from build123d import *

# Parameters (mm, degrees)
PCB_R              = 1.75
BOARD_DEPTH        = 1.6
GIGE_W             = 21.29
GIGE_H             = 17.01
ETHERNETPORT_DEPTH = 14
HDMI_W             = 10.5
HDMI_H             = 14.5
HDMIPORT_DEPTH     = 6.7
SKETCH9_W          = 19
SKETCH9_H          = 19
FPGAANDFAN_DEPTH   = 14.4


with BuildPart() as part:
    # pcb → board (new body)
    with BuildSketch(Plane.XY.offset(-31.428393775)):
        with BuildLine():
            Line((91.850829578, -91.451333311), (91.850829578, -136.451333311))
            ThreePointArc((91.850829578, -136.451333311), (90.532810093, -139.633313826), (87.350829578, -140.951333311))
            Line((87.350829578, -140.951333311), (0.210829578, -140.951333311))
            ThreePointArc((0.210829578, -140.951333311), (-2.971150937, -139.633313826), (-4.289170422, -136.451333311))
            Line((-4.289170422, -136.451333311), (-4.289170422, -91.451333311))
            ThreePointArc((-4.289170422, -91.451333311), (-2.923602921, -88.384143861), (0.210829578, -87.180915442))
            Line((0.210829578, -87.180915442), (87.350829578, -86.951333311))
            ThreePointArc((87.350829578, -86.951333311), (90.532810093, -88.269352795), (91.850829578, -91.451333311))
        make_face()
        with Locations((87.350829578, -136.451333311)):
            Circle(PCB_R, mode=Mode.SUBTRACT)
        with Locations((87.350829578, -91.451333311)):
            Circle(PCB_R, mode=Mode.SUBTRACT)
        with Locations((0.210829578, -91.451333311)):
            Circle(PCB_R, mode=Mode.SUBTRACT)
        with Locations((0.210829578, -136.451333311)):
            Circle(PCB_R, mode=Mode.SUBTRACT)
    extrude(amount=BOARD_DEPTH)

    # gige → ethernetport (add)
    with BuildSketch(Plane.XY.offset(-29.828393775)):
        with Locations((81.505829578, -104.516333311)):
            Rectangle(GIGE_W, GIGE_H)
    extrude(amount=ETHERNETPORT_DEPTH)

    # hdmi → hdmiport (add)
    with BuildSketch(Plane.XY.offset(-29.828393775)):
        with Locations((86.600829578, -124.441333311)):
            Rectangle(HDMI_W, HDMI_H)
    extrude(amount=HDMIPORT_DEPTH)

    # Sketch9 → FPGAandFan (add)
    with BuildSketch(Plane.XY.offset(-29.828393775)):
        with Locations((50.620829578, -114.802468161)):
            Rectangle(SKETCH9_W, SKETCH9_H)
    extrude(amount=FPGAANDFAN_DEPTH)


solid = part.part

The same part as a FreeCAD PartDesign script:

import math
import FreeCAD as App
import Part
import Sketcher

doc = App.newDocument("Part")
params = doc.addObject("Spreadsheet::Sheet", "Params")
for row, (alias, value) in enumerate([
    ("sketch1_diameter", "3.5 mm"),
    ("sketch1_radius", "4.5 mm"),
    ("sketch1_height", "45 mm"),
    ("sketch1_width", "87.14 mm"),
    ("pad1_length", "1.6 mm"),
    ("sketch2_width", "21.29 mm"),
    ("sketch2_height", "17.01 mm"),
    ("pad2_length", "14 mm"),
    ("sketch3_width", "10.5 mm"),
    ("sketch3_height", "14.5 mm"),
    ("pad3_length", "6.7 mm"),
    ("sketch4_width", "19 mm"),
    ("pad4_length", "14.4 mm"),
], start=1):
    params.set(f"A{row}", alias)
    params.set(f"B{row}", "=" + value)
    params.setAlias(f"B{row}", alias)

body = doc.addObject("PartDesign::Body", "Body")

sketch1 = body.newObject("Sketcher::SketchObject", "Sketch")
sketch1.AttachmentSupport = (doc.getObject("XY_Plane"), [""])
sketch1.MapMode = "FlatFace"
sketch1.AttachmentOffset = App.Placement(App.Vector(0, 0, -31.428394), App.Rotation())
sketch1.addGeometry(Part.LineSegment(App.Vector(91.9, -136.5, 0), App.Vector(91.9, -91.5, 0)), False)
sketch1.addGeometry(Part.ArcOfCircle(Part.Circle(App.Vector(87.4, -91.5, 0), App.Vector(0, 0, 1), 4.5), math.radians(0), math.radians(90)), False)
sketch1.addGeometry(Part.LineSegment(App.Vector(87.4, -87, 0), App.Vector(0.2, -87.2, 0)), False)
sketch1.addGeometry(Part.ArcOfCircle(Part.Circle(App.Vector(0.1, -91.6, 0), App.Vector(0, 0, 1), 4.4), math.radians(89), math.radians(179)), False)
sketch1.addGeometry(Part.LineSegment(App.Vector(-4.3, -91.5, 0), App.Vector(-4.3, -136.5, 0)), False)
sketch1.addGeometry(Part.ArcOfCircle(Part.Circle(App.Vector(0.2, -136.5, 0), App.Vector(0, 0, 1), 4.5), math.radians(-180), math.radians(-90)), False)
sketch1.addGeometry(Part.LineSegment(App.Vector(0.2, -141, 0), App.Vector(87.4, -141, 0)), False)
sketch1.addGeometry(Part.ArcOfCircle(Part.Circle(App.Vector(87.4, -136.5, 0), App.Vector(0, 0, 1), 4.5), math.radians(-90), math.radians(0)), False)
sketch1.addGeometry(Part.Circle(App.Vector(87.4, -136.5, 0), App.Vector(0, 0, 1), 1.8), False)
sketch1.addGeometry(Part.Circle(App.Vector(0.2, -136.5, 0), App.Vector(0, 0, 1), 1.8), False)
sketch1.addGeometry(Part.Circle(App.Vector(87.4, -91.5, 0), App.Vector(0, 0, 1), 1.8), False)
sketch1.addGeometry(Part.Circle(App.Vector(0.2, -91.5, 0), App.Vector(0, 0, 1), 1.8), False)
sketch1.addConstraint(Sketcher.Constraint("Tangent", 0, 2, 1, 1))
sketch1.addConstraint(Sketcher.Constraint("Coincident", 1, 2, 2, 1))
sketch1.addConstraint(Sketcher.Constraint("Coincident", 2, 2, 3, 1))
sketch1.addConstraint(Sketcher.Constraint("Coincident", 3, 2, 4, 1))
sketch1.addConstraint(Sketcher.Constraint("Tangent", 4, 2, 5, 1))
sketch1.addConstraint(Sketcher.Constraint("Tangent", 5, 2, 6, 1))
sketch1.addConstraint(Sketcher.Constraint("Tangent", 6, 2, 7, 1))
sketch1.addConstraint(Sketcher.Constraint("Tangent", 7, 2, 0, 1))
sketch1.addConstraint(Sketcher.Constraint("Vertical", 0))
sketch1.addConstraint(Sketcher.Constraint("Vertical", 4))
sketch1.addConstraint(Sketcher.Constraint("Horizontal", 6))
sketch1.addConstraint(Sketcher.Constraint("Coincident", 8, 3, 7, 3))
sketch1.addConstraint(Sketcher.Constraint("Coincident", 9, 3, 5, 3))
sketch1.addConstraint(Sketcher.Constraint("Coincident", 10, 3, 1, 3))
sketch1.addConstraint(Sketcher.Constraint("Equal", 1, 5))
sketch1.addConstraint(Sketcher.Constraint("Equal", 5, 7))
sketch1.addConstraint(Sketcher.Constraint("Equal", 8, 9))
sketch1.addConstraint(Sketcher.Constraint("Equal", 9, 10))
sketch1.addConstraint(Sketcher.Constraint("Equal", 10, 11))
sketch1.addConstraint(Sketcher.Constraint("Horizontal", 10, 3, 11, 3))
sketch1.addConstraint(Sketcher.Constraint("Horizontal", 0, 2, 3, 2))
sketch1.addConstraint(Sketcher.Constraint("Vertical", 9, 3, 11, 3))
sketch1.addConstraint(Sketcher.Constraint("Vertical", 10, 3, 1, 2))
sketch1.addConstraint(Sketcher.Constraint("Vertical", 11, 3, 2, 2))
sketch1.addConstraint(Sketcher.Constraint("Diameter", 8, 3.5))
sketch1.addConstraint(Sketcher.Constraint("Radius", 1, 4.5))
sketch1.addConstraint(Sketcher.Constraint("DistanceY", 0, 1, 0, 2, 45.0))
sketch1.addConstraint(Sketcher.Constraint("DistanceX", 6, 1, 6, 2, 87.14))
sketch1.addConstraint(Sketcher.Constraint("Radius", 3, 4.386711))
sketch1.addConstraint(Sketcher.Constraint("DistanceX", -1, 1, 1, 3, 87.35083))
sketch1.addConstraint(Sketcher.Constraint("DistanceX", -1, 1, 3, 3, 0.096039))
sketch1.addConstraint(Sketcher.Constraint("DistanceY", 1, 3, -1, 1, 91.451333))
sketch1.setExpression("Constraints[24]", "Params.sketch1_diameter")
sketch1.setExpression("Constraints[25]", "Params.sketch1_radius")
sketch1.setExpression("Constraints[26]", "Params.sketch1_height")
sketch1.setExpression("Constraints[27]", "Params.sketch1_width")
pad1 = body.newObject("PartDesign::Pad", "Pad")
pad1.Profile = sketch1
pad1.setExpression("Length", "Params.pad1_length")

sketch2 = body.newObject("Sketcher::SketchObject", "Sketch001")
sketch2.AttachmentSupport = (doc.getObject("XY_Plane"), [""])
sketch2.MapMode = "FlatFace"
sketch2.AttachmentOffset = App.Placement(App.Vector(0, 0, -29.828394), App.Rotation())
sketch2.addGeometry(Part.LineSegment(App.Vector(71, -96, 0), App.Vector(71, -113, 0)), False)
sketch2.addGeometry(Part.LineSegment(App.Vector(71, -113, 0), App.Vector(92, -113, 0)), False)
sketch2.addGeometry(Part.LineSegment(App.Vector(92, -113, 0), App.Vector(92, -96, 0)), False)
sketch2.addGeometry(Part.LineSegment(App.Vector(92, -96, 0), App.Vector(71, -96, 0)), False)
sketch2.addConstraint(Sketcher.Constraint("Coincident", 0, 2, 1, 1))
sketch2.addConstraint(Sketcher.Constraint("Coincident", 1, 2, 2, 1))
sketch2.addConstraint(Sketcher.Constraint("Coincident", 2, 2, 3, 1))
sketch2.addConstraint(Sketcher.Constraint("Coincident", 3, 2, 0, 1))
sketch2.addConstraint(Sketcher.Constraint("Vertical", 0))
sketch2.addConstraint(Sketcher.Constraint("Horizontal", 1))
sketch2.addConstraint(Sketcher.Constraint("Vertical", 2))
sketch2.addConstraint(Sketcher.Constraint("Horizontal", 3))
sketch2.addConstraint(Sketcher.Constraint("DistanceX", 1, 1, 1, 2, 21.29))
sketch2.addConstraint(Sketcher.Constraint("DistanceY", 0, 2, 0, 1, 17.01))
sketch2.addConstraint(Sketcher.Constraint("DistanceX", -1, 1, 0, 2, 70.86083))
sketch2.addConstraint(Sketcher.Constraint("DistanceY", 0, 2, -1, 1, 113.021333))
sketch2.setExpression("Constraints[8]", "Params.sketch2_width")
sketch2.setExpression("Constraints[9]", "Params.sketch2_height")
pad2 = body.newObject("PartDesign::Pad", "Pad001")
pad2.Profile = sketch2
pad2.setExpression("Length", "Params.pad2_length")

sketch3 = body.newObject("Sketcher::SketchObject", "Sketch002")
sketch3.AttachmentSupport = (doc.getObject("XY_Plane"), [""])
sketch3.MapMode = "FlatFace"
sketch3.AttachmentOffset = App.Placement(App.Vector(0, 0, -29.828394), App.Rotation())
sketch3.addGeometry(Part.LineSegment(App.Vector(81, -117, 0), App.Vector(81, -132, 0)), False)
sketch3.addGeometry(Part.LineSegment(App.Vector(81, -132, 0), App.Vector(92, -132, 0)), False)
sketch3.addGeometry(Part.LineSegment(App.Vector(92, -132, 0), App.Vector(92, -117, 0)), False)
sketch3.addGeometry(Part.LineSegment(App.Vector(92, -117, 0), App.Vector(81, -117, 0)), False)
sketch3.addConstraint(Sketcher.Constraint("Coincident", 0, 2, 1, 1))
sketch3.addConstraint(Sketcher.Constraint("Coincident", 1, 2, 2, 1))
sketch3.addConstraint(Sketcher.Constraint("Coincident", 2, 2, 3, 1))
sketch3.addConstraint(Sketcher.Constraint("Coincident", 3, 2, 0, 1))
sketch3.addConstraint(Sketcher.Constraint("Vertical", 0))
sketch3.addConstraint(Sketcher.Constraint("Horizontal", 1))
sketch3.addConstraint(Sketcher.Constraint("Vertical", 2))
sketch3.addConstraint(Sketcher.Constraint("Horizontal", 3))
sketch3.addConstraint(Sketcher.Constraint("DistanceX", 1, 1, 1, 2, 10.5))
sketch3.addConstraint(Sketcher.Constraint("DistanceY", 0, 2, 0, 1, 14.5))
sketch3.addConstraint(Sketcher.Constraint("DistanceX", -1, 1, 0, 2, 81.35083))
sketch3.addConstraint(Sketcher.Constraint("DistanceY", 0, 2, -1, 1, 131.691333))
sketch3.setExpression("Constraints[8]", "Params.sketch3_width")
sketch3.setExpression("Constraints[9]", "Params.sketch3_height")
pad3 = body.newObject("PartDesign::Pad", "Pad002")
pad3.Profile = sketch3
pad3.setExpression("Length", "Params.pad3_length")

sketch4 = body.newObject("Sketcher::SketchObject", "Sketch003")
sketch4.AttachmentSupport = (doc.getObject("XY_Plane"), [""])
sketch4.MapMode = "FlatFace"
sketch4.AttachmentOffset = App.Placement(App.Vector(0, 0, -29.828394), App.Rotation())
sketch4.addGeometry(Part.LineSegment(App.Vector(41, -105, 0), App.Vector(41, -124, 0)), False)
sketch4.addGeometry(Part.LineSegment(App.Vector(41, -124, 0), App.Vector(60, -124, 0)), False)
sketch4.addGeometry(Part.LineSegment(App.Vector(60, -124, 0), App.Vector(60, -105, 0)), False)
sketch4.addGeometry(Part.LineSegment(App.Vector(60, -105, 0), App.Vector(41, -105, 0)), False)
sketch4.addConstraint(Sketcher.Constraint("Coincident", 0, 2, 1, 1))
sketch4.addConstraint(Sketcher.Constraint("Coincident", 1, 2, 2, 1))
sketch4.addConstraint(Sketcher.Constraint("Coincident", 2, 2, 3, 1))
sketch4.addConstraint(Sketcher.Constraint("Coincident", 3, 2, 0, 1))
sketch4.addConstraint(Sketcher.Constraint("Vertical", 0))
sketch4.addConstraint(Sketcher.Constraint("Horizontal", 1))
sketch4.addConstraint(Sketcher.Constraint("Vertical", 2))
sketch4.addConstraint(Sketcher.Constraint("Horizontal", 3))
sketch4.addConstraint(Sketcher.Constraint("Equal", 3, 0))
sketch4.addConstraint(Sketcher.Constraint("DistanceX", 1, 1, 1, 2, 19.0))
sketch4.addConstraint(Sketcher.Constraint("DistanceX", -1, 1, 0, 2, 41.12083))
sketch4.addConstraint(Sketcher.Constraint("DistanceY", 0, 2, -1, 1, 124.302468))
sketch4.setExpression("Constraints[9]", "Params.sketch4_width")
pad4 = body.newObject("PartDesign::Pad", "Pad003")
pad4.Profile = sketch4
pad4.setExpression("Length", "Params.pad4_length")

doc.recompute()
